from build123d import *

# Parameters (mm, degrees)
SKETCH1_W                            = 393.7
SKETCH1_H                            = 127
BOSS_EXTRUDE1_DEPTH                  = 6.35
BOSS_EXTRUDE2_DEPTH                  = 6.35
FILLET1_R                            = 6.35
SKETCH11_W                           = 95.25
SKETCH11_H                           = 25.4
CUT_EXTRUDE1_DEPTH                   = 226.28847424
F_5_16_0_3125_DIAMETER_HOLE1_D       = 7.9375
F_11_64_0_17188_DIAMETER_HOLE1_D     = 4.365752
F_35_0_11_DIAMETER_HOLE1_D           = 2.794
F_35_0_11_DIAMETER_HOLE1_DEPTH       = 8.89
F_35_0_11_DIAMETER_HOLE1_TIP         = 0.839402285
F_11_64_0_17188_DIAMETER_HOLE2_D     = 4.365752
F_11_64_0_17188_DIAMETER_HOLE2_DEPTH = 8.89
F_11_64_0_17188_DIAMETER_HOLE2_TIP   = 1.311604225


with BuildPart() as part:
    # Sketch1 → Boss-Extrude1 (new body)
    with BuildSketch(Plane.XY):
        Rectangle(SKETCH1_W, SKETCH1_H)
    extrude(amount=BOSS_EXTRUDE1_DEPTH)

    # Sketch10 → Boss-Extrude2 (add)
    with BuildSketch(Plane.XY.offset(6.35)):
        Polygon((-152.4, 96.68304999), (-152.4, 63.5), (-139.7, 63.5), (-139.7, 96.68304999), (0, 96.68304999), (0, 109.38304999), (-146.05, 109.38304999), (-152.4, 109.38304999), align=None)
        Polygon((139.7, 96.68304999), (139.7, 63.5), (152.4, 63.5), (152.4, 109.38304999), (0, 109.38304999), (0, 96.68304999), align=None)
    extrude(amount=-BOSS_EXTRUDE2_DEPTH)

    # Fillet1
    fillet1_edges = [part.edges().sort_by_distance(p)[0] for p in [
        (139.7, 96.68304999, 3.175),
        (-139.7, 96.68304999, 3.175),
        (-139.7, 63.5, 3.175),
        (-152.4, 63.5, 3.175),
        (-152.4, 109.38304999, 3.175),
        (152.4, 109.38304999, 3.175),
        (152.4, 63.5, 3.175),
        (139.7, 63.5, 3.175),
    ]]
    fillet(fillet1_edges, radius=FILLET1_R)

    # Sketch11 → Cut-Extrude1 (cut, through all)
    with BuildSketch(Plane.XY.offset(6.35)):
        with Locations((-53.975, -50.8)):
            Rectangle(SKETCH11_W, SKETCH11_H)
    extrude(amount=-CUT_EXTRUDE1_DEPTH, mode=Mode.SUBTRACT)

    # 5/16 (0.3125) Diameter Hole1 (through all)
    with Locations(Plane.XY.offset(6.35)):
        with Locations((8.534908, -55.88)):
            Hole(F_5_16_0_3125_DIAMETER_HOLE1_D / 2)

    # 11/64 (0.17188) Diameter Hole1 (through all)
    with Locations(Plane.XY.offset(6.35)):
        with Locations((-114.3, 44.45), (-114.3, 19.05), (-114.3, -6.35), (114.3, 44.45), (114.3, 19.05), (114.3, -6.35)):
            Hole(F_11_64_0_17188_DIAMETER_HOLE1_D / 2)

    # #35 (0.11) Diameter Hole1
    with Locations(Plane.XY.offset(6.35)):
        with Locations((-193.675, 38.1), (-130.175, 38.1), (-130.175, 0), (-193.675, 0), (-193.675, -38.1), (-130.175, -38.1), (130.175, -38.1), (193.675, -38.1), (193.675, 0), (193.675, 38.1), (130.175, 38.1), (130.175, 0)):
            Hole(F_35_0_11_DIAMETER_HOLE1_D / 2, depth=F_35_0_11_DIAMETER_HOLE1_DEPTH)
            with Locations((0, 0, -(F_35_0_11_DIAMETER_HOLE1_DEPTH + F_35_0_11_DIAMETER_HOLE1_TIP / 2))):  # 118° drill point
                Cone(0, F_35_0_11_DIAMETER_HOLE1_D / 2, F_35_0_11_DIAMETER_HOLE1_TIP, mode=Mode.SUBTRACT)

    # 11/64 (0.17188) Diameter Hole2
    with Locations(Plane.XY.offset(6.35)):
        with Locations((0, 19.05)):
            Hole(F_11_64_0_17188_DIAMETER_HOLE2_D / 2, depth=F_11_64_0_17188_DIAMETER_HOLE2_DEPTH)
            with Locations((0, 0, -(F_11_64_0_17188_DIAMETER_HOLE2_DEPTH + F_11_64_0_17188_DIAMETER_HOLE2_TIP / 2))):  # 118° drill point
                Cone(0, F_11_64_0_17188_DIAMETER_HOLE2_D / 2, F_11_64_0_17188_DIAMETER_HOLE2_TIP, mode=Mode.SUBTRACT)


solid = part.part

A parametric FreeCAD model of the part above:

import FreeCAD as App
import Part
import Sketcher

V = App.Vector
Q = App.Units.Quantity


def edges_at(feature, points):
    """Names of the edges that pass closest to the given points."""
    edges = feature.Shape.Edges
    near = lambda p: min(range(len(edges)), key=lambda i: edges[i].distToShape(Part.Vertex(*p))[0])
    return sorted({f"Edge{near(p) + 1}" for p in points})

doc = App.newDocument("Part")
body = doc.addObject("PartDesign::Body", "Body")

# Sketch on XY plane
sketch1 = doc.addObject("Sketcher::SketchObject", "Sketch")
body.addObject(sketch1)
sketch1.AttachmentSupport = (doc.XY_Plane, [""])
sketch1.MapMode = "FlatFace"
sketch1.addGeometry([
    Part.LineSegment(V(-197, 64, 0), V(-197, -64, 0)),
    Part.LineSegment(V(-197, -64, 0), V(197, -64, 0)),
    Part.LineSegment(V(197, -64, 0), V(197, 64, 0)),
    Part.LineSegment(V(197, 64, 0), V(-197, 64, 0)),
], False)
sketch1.addConstraint([
    Sketcher.Constraint("Coincident", 0, 2, 1, 1),
    Sketcher.Constraint("Coincident", 1, 2, 2, 1),
    Sketcher.Constraint("Coincident", 2, 2, 3, 1),
    Sketcher.Constraint("Coincident", 3, 2, 0, 1),
    Sketcher.Constraint("Vertical", 0),
    Sketcher.Constraint("Horizontal", 1),
    Sketcher.Constraint("Vertical", 2),
    Sketcher.Constraint("Horizontal", 3),
    Sketcher.Constraint("Symmetric", 0, 2, 2, 2, -1, 1),
    Sketcher.Constraint("DistanceY", 0, 2, 0, 1, Q("5 in")),
    Sketcher.Constraint("DistanceX", 1, 1, 1, 2, Q("15.5 in")),
])
pad1 = doc.addObject("PartDesign::Pad", "Pad")
body.addObject(pad1)
pad1.Profile = sketch1
pad1.Length = Q("0.25 in")

# Sketch on XY plane
sketch2 = doc.addObject("Sketcher::SketchObject", "Sketch001")
body.addObject(sketch2)
sketch2.AttachmentSupport = (doc.XY_Plane, [""])
sketch2.MapMode = "FlatFace"
sketch2.AttachmentOffset = App.Placement(V(0, 0, 0.25 * 25.4), App.Rotation())
sketch2.addGeometry([
    Part.LineSegment(V(-152, 64, 0), V(-140, 64, 0)),  # 0
    Part.LineSegment(V(-140, 64, 0), V(-140, 97, 0)),  # 1
    Part.LineSegment(V(-140, 97, 0), V(140, 97, 0)),  # 2
    Part.LineSegment(V(140, 97, 0), V(140, 64, 0)),  # 3
    Part.LineSegment(V(140, 64, 0), V(152, 64, 0)),  # 4
    Part.LineSegment(V(152, 64, 0), V(152, 109, 0)),  # 5
    Part.LineSegment(V(152, 109, 0), V(-152, 109, 0)),  # 6
    Part.LineSegment(V(-152, 109, 0), V(-152, 64, 0)),  # 7
], False)
sketch2.addConstraint([
    Sketcher.Constraint("Coincident", 0, 2, 1, 1),
    Sketcher.Constraint("Coincident", 1, 2, 2, 1),
    Sketcher.Constraint("Coincident", 2, 2, 3, 1),
    Sketcher.Constraint("Coincident", 3, 2, 4, 1),
    Sketcher.Constraint("Coincident", 4, 2, 5, 1),
    Sketcher.Constraint("Coincident", 5, 2, 6, 1),
    Sketcher.Constraint("Coincident", 6, 2, 7, 1),
    Sketcher.Constraint("Coincident", 7, 2, 0, 1),
    Sketcher.Constraint("Horizontal", 0),
    Sketcher.Constraint("Vertical", 1),
    Sketcher.Constraint("Horizontal", 2),
    Sketcher.Constraint("Vertical", 3),
    Sketcher.Constraint("Horizontal", 4),
    Sketcher.Constraint("Vertical", 5),
    Sketcher.Constraint("Horizontal", 6),
    Sketcher.Constraint("Vertical", 7),
    Sketcher.Constraint("Symmetric", 0, 2, 3, 2, -2),
    Sketcher.Constraint("Equal", 0, 4),
    Sketcher.Constraint("DistanceX", 2, 1, 2, 2, Q("11 in")),
    Sketcher.Constraint("DistanceX", 6, 2, 6, 1, Q("12 in")),
    Sketcher.Constraint("DistanceY", -1, 1, 0, 2, Q("2.5 in")),
    Sketcher.Constraint("DistanceY", 2, 2, 5, 2, Q("0.5 in")),
    Sketcher.Constraint("DistanceY", 1, 1, 1, 2, 33.18305),
])
pad2 = doc.addObject("PartDesign::Pad", "Pad001")
body.addObject(pad2)
pad2.Profile = sketch2
pad2.Length = Q("0.25 in")
pad2.Reversed = True
doc.recompute()

fillet = doc.addObject("PartDesign::Fillet", "Fillet")
body.addObject(fillet)
fillet.Base = (pad2, edges_at(pad2, [
    (139.7, 96.683, 3.175),
    (-139.7, 96.683, 3.175),
    (-139.7, 63.5, 3.175),
    (-152.4, 63.5, 3.175),
    (-152.4, 109.383, 3.175),
    (152.4, 109.383, 3.175),
    (152.4, 63.5, 3.175),
    (139.7, 63.5, 3.175),
]))
fillet.Radius = Q("0.25 in")

# Sketch on XY plane
sketch3 = doc.addObject("Sketcher::SketchObject", "Sketch002")
body.addObject(sketch3)
sketch3.AttachmentSupport = (doc.XY_Plane, [""])
sketch3.MapMode = "FlatFace"
sketch3.AttachmentOffset = App.Placement(V(0, 0, 0.25 * 25.4), App.Rotation())
sketch3.addGeometry([
    Part.LineSegment(V(-102, -38, 0), V(-102, -64, 0)),
    Part.LineSegment(V(-102, -64, 0), V(-6, -64, 0)),
    Part.LineSegment(V(-6, -64, 0), V(-6, -38, 0)),
    Part.LineSegment(V(-6, -38, 0), V(-102, -38, 0)),
], False)
sketch3.addConstraint([
    Sketcher.Constraint("Coincident", 0, 2, 1, 1),
    Sketcher.Constraint("Coincident", 1, 2, 2, 1),
    Sketcher.Constraint("Coincident", 2, 2, 3, 1),
    Sketcher.Constraint("Coincident", 3, 2, 0, 1),
    Sketcher.Constraint("Vertical", 0),
    Sketcher.Constraint("Horizontal", 1),
    Sketcher.Constraint("Vertical", 2),
    Sketcher.Constraint("Horizontal", 3),
    Sketcher.Constraint("DistanceY", 0, 2, 0, 1, Q("1 in")),
    Sketcher.Constraint("DistanceX", 0, 2, -1, 1, Q("4 in")),
    Sketcher.Constraint("DistanceX", 1, 1, 1, 2, Q("3.75 in")),
    Sketcher.Constraint("DistanceY", 0, 2, -1, 1, Q("2.5 in")),
])
pocket1 = doc.addObject("PartDesign::Pocket", "Pocket")
body.addObject(pocket1)
pocket1.Profile = sketch3
pocket1.Type = "ThroughAll"

# Sketch on XY plane
sketch4 = doc.addObject("Sketcher::SketchObject", "Sketch003")
body.addObject(sketch4)
sketch4.AttachmentSupport = (doc.XY_Plane, [""])
sketch4.MapMode = "FlatFace"
sketch4.AttachmentOffset = App.Placement(V(0, 0, 0.25 * 25.4), App.Rotation())
sketch4.addGeometry(Part.Circle(V(8.5, -55.9, 0), V(0, 0, 1), 4), False)
sketch4.addConstraint([
    Sketcher.Constraint("Diameter", 0, Q("0.3125 in")),
    Sketcher.Constraint("DistanceY", 0, 3, -1, 1, Q("2.2 in")),
    Sketcher.Constraint("DistanceX", -1, 1, 0, 3, 8.534908),
])
doc.recompute()
hole = doc.addObject("PartDesign::Hole", "Hole")
body.addObject(hole)
hole.Profile = sketch4
hole.ThreadType = "None"
hole.Diameter = Q("0.3125 in")
hole.DepthType = "ThroughAll"

# Sketch on XY plane
sketch5 = doc.addObject("Sketcher::SketchObject", "Sketch004")
body.addObject(sketch5)
sketch5.AttachmentSupport = (doc.XY_Plane, [""])
sketch5.MapMode = "FlatFace"
sketch5.AttachmentOffset = App.Placement(V(0, 0, 0.25 * 25.4), App.Rotation())
sketch5.addGeometry([
    Part.Circle(V(-114.3, 44.5, 0), V(0, 0, 1), 2.2),  # 0
    Part.Circle(V(-114.3, 19.1, 0), V(0, 0, 1), 2.2),  # 1
    Part.Circle(V(-114.3, -6.3, 0), V(0, 0, 1), 2.2),  # 2
    Part.Circle(V(114.3, 44.5, 0), V(0, 0, 1), 2.2),  # 3
    Part.Circle(V(114.3, 19.1, 0), V(0, 0, 1), 2.2),  # 4
    Part.Circle(V(114.3, -6.3, 0), V(0, 0, 1), 2.2),  # 5
], False)
sketch5.addConstraint([
    Sketcher.Constraint("Equal", 0, 1),
    Sketcher.Constraint("Equal", 1, 2),
    Sketcher.Constraint("Equal", 2, 3),
    Sketcher.Constraint("Equal", 3, 4),
    Sketcher.Constraint("Equal", 4, 5),
    Sketcher.Constraint("Symmetric", 0, 3, 3, 3, -2),
    Sketcher.Constraint("Symmetric", 1, 3, 4, 3, -2),
    Sketcher.Constraint("Symmetric", 2, 3, 5, 3, -2),
    Sketcher.Constraint("Vertical", 0, 3, 1, 3),
    Sketcher.Constraint("Vertical", 1, 3, 2, 3),
    Sketcher.Constraint("DistanceY", 1, 3, 0, 3, Q("1 in")),
    Sketcher.Constraint("DistanceY", 2, 3, 1, 3, Q("1 in")),
    Sketcher.Constraint("DistanceX", 0, 3, 3, 3, Q("9 in")),
    Sketcher.Constraint("DistanceY", -1, 1, 0, 3, Q("1.75 in")),
    Sketcher.Constraint("Diameter", 0, 4.365752),
])
doc.recompute()
hole2 = doc.addObject("PartDesign::Hole", "Hole001")
body.addObject(hole2)
hole2.Profile = sketch5
hole2.ThreadType = "None"
hole2.Diameter = 4.365752
hole2.DepthType = "ThroughAll"

# Sketch on XY plane
sketch6 = doc.addObject("Sketcher::SketchObject", "Sketch005")
body.addObject(sketch6)
sketch6.AttachmentSupport = (doc.XY_Plane, [""])
sketch6.MapMode = "FlatFace"
sketch6.AttachmentOffset = App.Placement(V(0, 0, 0.25 * 25.4), App.Rotation())
sketch6.addGeometry([
    Part.Circle(V(-193.7, 38.1, 0), V(0, 0, 1), 1.4),  # 0
    Part.Circle(V(-130.2, 38.1, 0), V(0, 0, 1), 1.4),  # 1
    Part.Circle(V(-130.2, 0, 0), V(0, 0, 1), 1.4),  # 2
    Part.Circle(V(-193.7, 0, 0), V(0, 0, 1), 1.4),  # 3
    Part.Circle(V(-193.7, -38.1, 0), V(0, 0, 1), 1.4),  # 4
    Part.Circle(V(-130.2, -38.1, 0), V(0, 0, 1), 1.4),  # 5
    Part.Circle(V(130.2, -38.1, 0), V(0, 0, 1), 1.4),  # 6
    Part.Circle(V(193.7, -38.1, 0), V(0, 0, 1), 1.4),  # 7
    Part.Circle(V(193.7, 0, 0), V(0, 0, 1), 1.4),  # 8
    Part.Circle(V(193.7, 38.1, 0), V(0, 0, 1), 1.4),  # 9
    Part.Circle(V(130.2, 38.1, 0), V(0, 0, 1), 1.4),  # 10
    Part.Circle(V(130.2, 0, 0), V(0, 0, 1), 1.4),  # 11
], False)
sketch6.addConstraint([
    Sketcher.Constraint("Equal", 0, 1),
    Sketcher.Constraint("Equal", 1, 2),
    Sketcher.Constraint("Equal", 2, 3),
    Sketcher.Constraint("Equal", 3, 4),
    Sketcher.Constraint("Equal", 4, 5),
    Sketcher.Constraint("Equal", 5, 6),
    Sketcher.Constraint("Equal", 6, 7),
    Sketcher.Constraint("Equal", 7, 8),
    Sketcher.Constraint("Equal", 8, 9),
    Sketcher.Constraint("Equal", 9, 10),
    Sketcher.Constraint("Equal", 10, 11),
    Sketcher.Constraint("Symmetric", 1, 3, 6, 3, -1, 1),
    Sketcher.Constraint("Symmetric", 0, 3, 7, 3, -1, 1),
    Sketcher.Constraint("Symmetric", 3, 3, 8, 3, -1, 1),
    Sketcher.Constraint("Symmetric", 4, 3, 9, 3, -1, 1),
    Sketcher.Constraint("Symmetric", 5, 3, 10, 3, -1, 1),
    Sketcher.Constraint("Symmetric", 2, 3, 11, 3, -1, 1),
    Sketcher.Constraint("Symmetric", 5, 3, 6, 3, -2),
    Sketcher.Constraint("Symmetric", 4, 3, 7, 3, -2),
    Sketcher.Constraint("PointOnObject", 2, 3, -1),
    Sketcher.Constraint("PointOnObject", 3, 3, -1),
    Sketcher.Constraint("Horizontal", 0, 3, 1, 3),
    Sketcher.Constraint("Vertical", 1, 3, 2, 3),
    Sketcher.Constraint("Vertical", 0, 3, 3, 3),
    Sketcher.Constraint("Diameter", 0, Q("0.11 in")),
    Sketcher.Constraint("DistanceY", 4, 3, 0, 3, Q("3 in")),
    Sketcher.Constraint("DistanceX", 0, 3, 1, 3, Q("2.5 in")),
    Sketcher.Constraint("DistanceX", 5, 3, 6, 3, Q("10.25 in")),
])
doc.recompute()
hole3 = doc.addObject("PartDesign::Hole", "Hole002")
body.addObject(hole3)
hole3.Profile = sketch6
hole3.ThreadType = "None"
hole3.Diameter = Q("0.11 in")
hole3.DepthType = "Dimension"
hole3.Depth = Q("0.35 in")
hole3.DrillPoint = "Angled"
hole3.DrillPointAngle = 118

# Sketch on XY plane
sketch7 = doc.addObject("Sketcher::SketchObject", "Sketch006")
body.addObject(sketch7)
sketch7.AttachmentSupport = (doc.XY_Plane, [""])
sketch7.MapMode = "FlatFace"
sketch7.AttachmentOffset = App.Placement(V(0, 0, 0.25 * 25.4), App.Rotation())
sketch7.addGeometry(Part.Circle(V(0, 19.1, 0), V(0, 0, 1), 2.2), False)
sketch7.addConstraint([
    Sketcher.Constraint("PointOnObject", 0, 3, -2),
    Sketcher.Constraint("DistanceY", -1, 1, 0, 3, Q("0.75 in")),
    Sketcher.Constraint("Diameter", 0, 4.365752),
])
doc.recompute()
hole4 = doc.addObject("PartDesign::Hole", "Hole003")
body.addObject(hole4)
hole4.Profile = sketch7
hole4.ThreadType = "None"
hole4.Diameter = 4.365752
hole4.DepthType = "Dimension"
hole4.Depth = Q("0.35 in")
hole4.DrillPoint = "Angled"
hole4.DrillPointAngle = 118

doc.recompute()
